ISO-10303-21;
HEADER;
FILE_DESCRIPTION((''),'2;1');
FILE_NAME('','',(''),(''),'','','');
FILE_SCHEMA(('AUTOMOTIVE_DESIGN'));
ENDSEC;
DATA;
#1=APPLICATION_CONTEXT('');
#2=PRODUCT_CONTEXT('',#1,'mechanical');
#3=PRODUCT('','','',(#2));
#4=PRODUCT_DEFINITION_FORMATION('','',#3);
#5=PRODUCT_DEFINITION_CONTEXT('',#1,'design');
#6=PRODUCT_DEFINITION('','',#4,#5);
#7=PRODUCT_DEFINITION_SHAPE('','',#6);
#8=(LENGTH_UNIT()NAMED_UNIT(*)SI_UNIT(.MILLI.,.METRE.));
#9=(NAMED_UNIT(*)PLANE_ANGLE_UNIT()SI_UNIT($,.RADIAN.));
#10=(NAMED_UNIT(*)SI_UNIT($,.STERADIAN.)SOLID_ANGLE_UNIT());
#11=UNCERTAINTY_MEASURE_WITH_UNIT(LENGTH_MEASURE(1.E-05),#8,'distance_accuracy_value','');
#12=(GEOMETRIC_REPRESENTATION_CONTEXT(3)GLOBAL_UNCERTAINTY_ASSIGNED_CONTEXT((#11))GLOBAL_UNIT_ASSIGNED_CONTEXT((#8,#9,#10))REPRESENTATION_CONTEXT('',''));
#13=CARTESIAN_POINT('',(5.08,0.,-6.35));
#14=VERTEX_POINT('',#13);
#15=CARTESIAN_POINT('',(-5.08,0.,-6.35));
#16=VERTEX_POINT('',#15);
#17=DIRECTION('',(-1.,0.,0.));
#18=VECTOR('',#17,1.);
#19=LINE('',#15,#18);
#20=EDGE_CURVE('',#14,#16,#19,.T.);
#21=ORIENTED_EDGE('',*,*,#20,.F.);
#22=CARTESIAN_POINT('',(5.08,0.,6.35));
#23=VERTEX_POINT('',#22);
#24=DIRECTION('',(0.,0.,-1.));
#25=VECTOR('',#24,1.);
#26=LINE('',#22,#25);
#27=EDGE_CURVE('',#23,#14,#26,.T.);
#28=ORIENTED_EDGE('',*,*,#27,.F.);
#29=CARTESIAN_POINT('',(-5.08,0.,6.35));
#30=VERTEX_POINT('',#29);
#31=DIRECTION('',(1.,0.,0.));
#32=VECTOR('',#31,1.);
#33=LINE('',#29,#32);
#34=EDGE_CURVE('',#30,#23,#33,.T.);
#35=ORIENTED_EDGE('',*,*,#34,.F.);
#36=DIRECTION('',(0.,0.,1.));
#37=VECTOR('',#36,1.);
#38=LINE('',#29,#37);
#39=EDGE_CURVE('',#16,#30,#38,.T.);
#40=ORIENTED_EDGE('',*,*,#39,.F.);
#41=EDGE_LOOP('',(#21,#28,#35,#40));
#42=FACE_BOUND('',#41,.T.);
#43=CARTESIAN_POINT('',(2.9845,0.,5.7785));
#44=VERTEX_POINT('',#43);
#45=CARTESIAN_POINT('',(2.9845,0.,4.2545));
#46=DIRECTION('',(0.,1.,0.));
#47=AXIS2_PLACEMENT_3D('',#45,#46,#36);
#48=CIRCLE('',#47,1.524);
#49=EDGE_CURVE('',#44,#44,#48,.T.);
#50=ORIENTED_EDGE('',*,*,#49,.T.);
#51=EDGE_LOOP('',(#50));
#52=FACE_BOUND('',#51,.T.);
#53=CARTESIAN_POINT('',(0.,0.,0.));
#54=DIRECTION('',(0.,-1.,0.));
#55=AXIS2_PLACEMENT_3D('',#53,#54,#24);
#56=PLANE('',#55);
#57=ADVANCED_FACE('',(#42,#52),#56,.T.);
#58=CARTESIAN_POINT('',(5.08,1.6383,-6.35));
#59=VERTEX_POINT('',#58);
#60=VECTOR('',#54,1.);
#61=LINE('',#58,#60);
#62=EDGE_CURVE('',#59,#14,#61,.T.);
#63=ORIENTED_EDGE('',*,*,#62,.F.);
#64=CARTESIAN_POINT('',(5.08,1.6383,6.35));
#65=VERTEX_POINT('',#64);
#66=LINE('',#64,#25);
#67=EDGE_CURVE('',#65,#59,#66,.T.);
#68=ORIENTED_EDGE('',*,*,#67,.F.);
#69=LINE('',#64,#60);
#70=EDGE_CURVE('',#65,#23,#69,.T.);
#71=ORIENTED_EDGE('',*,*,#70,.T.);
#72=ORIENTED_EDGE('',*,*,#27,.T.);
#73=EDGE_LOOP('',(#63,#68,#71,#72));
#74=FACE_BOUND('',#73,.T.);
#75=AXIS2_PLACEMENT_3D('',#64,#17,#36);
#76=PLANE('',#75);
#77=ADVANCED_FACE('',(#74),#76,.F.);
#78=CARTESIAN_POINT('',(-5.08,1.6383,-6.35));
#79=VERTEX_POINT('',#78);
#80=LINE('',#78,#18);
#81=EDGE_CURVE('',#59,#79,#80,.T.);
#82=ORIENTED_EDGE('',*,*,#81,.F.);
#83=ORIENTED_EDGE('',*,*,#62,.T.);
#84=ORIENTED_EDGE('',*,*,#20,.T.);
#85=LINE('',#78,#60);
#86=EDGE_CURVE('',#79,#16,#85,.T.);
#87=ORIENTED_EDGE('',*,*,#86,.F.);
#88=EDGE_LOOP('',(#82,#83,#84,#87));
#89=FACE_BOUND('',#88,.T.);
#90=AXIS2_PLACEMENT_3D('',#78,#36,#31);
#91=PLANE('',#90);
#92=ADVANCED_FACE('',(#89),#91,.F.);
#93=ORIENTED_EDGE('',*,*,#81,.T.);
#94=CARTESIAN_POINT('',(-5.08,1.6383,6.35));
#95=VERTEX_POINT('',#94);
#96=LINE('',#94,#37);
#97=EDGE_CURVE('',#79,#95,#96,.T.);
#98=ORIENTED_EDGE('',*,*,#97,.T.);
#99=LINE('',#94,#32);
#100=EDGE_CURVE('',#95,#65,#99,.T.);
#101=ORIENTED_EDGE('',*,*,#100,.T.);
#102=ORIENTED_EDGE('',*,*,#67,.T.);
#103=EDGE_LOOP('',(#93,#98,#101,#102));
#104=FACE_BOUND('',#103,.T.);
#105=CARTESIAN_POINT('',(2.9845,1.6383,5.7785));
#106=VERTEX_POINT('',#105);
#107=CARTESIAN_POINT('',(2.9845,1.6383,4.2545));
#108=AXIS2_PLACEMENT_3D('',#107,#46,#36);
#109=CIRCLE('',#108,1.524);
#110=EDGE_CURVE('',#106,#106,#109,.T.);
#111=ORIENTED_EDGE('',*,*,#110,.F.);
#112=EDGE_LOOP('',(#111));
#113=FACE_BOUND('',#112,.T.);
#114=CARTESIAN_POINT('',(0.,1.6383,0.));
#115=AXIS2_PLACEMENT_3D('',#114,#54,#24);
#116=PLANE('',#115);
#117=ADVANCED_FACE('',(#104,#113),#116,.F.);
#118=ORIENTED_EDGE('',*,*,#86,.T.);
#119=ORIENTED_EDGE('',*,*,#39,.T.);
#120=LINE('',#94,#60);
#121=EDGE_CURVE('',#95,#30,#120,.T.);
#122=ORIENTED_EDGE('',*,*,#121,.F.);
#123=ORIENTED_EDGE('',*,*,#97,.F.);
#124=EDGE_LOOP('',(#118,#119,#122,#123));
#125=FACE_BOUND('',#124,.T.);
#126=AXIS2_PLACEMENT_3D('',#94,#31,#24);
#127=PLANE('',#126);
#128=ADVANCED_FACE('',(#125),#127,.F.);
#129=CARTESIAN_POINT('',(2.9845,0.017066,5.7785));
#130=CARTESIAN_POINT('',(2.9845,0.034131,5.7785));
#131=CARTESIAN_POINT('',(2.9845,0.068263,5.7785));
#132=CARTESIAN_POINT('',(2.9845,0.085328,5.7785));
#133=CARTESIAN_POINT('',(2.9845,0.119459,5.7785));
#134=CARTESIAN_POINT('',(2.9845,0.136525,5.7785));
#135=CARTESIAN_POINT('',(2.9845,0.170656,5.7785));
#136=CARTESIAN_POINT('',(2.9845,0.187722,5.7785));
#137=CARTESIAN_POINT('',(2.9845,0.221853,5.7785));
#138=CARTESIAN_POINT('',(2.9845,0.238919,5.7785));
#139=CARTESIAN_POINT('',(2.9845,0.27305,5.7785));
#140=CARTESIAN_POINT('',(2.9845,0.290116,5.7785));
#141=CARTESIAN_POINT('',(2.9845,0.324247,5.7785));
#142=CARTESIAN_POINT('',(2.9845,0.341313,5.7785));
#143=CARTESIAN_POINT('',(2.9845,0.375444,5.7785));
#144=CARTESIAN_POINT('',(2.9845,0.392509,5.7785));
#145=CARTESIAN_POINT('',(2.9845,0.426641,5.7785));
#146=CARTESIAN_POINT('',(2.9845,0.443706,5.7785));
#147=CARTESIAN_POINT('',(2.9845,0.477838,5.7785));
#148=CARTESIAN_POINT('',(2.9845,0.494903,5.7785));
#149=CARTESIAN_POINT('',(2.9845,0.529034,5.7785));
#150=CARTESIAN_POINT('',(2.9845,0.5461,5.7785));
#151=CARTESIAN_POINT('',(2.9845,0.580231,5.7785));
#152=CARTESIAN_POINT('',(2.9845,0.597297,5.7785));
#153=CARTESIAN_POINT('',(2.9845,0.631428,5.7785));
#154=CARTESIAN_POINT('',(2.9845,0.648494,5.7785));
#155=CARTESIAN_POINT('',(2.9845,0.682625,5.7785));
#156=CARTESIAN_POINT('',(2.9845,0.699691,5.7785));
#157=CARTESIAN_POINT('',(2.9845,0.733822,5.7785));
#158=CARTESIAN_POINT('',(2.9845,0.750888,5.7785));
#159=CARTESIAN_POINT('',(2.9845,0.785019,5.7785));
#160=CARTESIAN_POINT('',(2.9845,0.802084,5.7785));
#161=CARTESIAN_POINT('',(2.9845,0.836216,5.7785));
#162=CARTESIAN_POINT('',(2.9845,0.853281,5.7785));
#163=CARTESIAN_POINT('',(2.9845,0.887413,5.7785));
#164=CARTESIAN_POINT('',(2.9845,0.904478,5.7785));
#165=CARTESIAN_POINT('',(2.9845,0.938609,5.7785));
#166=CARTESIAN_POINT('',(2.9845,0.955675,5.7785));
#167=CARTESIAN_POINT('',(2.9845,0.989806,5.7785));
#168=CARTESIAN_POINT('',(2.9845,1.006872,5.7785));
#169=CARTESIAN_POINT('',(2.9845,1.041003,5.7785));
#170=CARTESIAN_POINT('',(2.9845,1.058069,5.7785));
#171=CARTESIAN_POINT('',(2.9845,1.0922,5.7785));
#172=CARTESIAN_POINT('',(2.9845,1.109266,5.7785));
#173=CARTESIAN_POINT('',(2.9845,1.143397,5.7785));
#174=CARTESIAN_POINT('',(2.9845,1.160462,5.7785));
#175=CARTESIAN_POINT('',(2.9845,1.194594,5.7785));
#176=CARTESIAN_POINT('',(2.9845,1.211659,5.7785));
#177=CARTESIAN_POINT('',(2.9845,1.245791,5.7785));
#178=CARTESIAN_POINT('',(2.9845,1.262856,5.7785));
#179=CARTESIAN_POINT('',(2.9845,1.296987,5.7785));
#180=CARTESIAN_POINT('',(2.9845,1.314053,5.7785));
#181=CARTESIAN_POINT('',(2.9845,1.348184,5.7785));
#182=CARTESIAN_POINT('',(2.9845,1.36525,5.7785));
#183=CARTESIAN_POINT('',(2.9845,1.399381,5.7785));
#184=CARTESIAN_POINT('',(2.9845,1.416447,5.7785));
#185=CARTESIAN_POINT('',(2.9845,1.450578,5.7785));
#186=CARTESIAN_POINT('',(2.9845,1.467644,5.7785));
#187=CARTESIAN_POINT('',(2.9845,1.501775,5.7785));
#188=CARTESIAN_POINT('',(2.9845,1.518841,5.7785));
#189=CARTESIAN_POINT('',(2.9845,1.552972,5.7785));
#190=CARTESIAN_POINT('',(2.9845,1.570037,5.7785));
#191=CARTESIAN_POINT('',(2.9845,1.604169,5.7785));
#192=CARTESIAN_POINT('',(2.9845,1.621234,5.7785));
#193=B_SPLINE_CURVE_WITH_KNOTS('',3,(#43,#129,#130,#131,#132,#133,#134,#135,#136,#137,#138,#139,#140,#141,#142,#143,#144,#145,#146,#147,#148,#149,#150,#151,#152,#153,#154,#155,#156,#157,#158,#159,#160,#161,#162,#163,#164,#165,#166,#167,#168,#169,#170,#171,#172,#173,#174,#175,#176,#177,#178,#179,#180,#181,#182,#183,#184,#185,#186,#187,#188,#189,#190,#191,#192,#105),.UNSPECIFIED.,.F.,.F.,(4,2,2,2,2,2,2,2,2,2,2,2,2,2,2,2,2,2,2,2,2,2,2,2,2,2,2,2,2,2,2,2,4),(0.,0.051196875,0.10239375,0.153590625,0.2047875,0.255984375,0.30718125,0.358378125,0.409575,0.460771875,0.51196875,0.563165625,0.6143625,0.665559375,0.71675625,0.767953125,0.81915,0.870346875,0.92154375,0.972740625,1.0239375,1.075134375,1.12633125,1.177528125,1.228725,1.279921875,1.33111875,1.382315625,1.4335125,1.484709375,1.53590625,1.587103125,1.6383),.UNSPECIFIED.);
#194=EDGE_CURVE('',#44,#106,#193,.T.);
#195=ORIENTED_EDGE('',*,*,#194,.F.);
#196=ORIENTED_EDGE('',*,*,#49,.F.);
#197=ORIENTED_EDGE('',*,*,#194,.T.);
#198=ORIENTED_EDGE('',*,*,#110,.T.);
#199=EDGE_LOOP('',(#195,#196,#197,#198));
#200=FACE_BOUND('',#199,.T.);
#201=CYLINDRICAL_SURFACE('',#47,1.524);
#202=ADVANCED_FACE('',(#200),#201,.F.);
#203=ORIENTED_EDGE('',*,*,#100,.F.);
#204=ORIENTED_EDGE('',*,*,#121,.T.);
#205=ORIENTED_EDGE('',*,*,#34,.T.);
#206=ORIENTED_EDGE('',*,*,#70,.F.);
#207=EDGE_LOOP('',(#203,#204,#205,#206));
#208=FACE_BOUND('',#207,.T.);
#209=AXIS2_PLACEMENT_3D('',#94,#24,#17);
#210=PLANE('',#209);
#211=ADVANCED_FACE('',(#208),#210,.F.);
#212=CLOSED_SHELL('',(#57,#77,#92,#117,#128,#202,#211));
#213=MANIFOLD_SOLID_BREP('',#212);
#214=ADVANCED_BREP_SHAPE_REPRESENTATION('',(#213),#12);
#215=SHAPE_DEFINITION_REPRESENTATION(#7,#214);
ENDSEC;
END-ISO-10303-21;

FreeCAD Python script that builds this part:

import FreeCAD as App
import Part
import Sketcher

V = App.Vector
Q = App.Units.Quantity

doc = App.newDocument("Part")
body = doc.addObject("PartDesign::Body", "Body")

# Sketch on XZ plane
sketch1 = doc.addObject("Sketcher::SketchObject", "Sketch")
body.addObject(sketch1)
sketch1.AttachmentSupport = (doc.XZ_Plane, [""])
sketch1.MapMode = "FlatFace"
sketch1.addGeometry([
    Part.LineSegment(V(-5, -6, 0), V(-5, 6, 0)),
    Part.LineSegment(V(-5, 6, 0), V(5, 6, 0)),
    Part.LineSegment(V(5, 6, 0), V(5, -6, 0)),
    Part.LineSegment(V(5, -6, 0), V(-5, -6, 0)),
], False)
sketch1.addConstraint([
    Sketcher.Constraint("Coincident", 0, 2, 1, 1),
    Sketcher.Constraint("Coincident", 1, 2, 2, 1),
    Sketcher.Constraint("Coincident", 2, 2, 3, 1),
    Sketcher.Constraint("Coincident", 3, 2, 0, 1),
    Sketcher.Constraint("Vertical", 0),
    Sketcher.Constraint("Horizontal", 1),
    Sketcher.Constraint("Vertical", 2),
    Sketcher.Constraint("Horizontal", 3),
    Sketcher.Constraint("Symmetric", 0, 2, 2, 2, -1, 1),
    Sketcher.Constraint("DistanceX", 1, 1, 1, 2, Q("0.4 in")),
    Sketcher.Constraint("DistanceY", 0, 1, 0, 2, Q("0.5 in")),
])
pad1 = doc.addObject("PartDesign::Pad", "Pad")
body.addObject(pad1)
pad1.Profile = sketch1
pad1.Length = Q("0.0645 in")
pad1.Reversed = True

# Sketch on XZ plane
sketch2 = doc.addObject("Sketcher::SketchObject", "Sketch001")
body.addObject(sketch2)
sketch2.AttachmentSupport = (doc.XZ_Plane, [""])
sketch2.MapMode = "FlatFace"
sketch2.AttachmentOffset = App.Placement(V(0, 0, -0.0645 * 25.4), App.Rotation())
sketch2.addGeometry(Part.Circle(V(3, 4.3, 0), V(0, 0, 1), 1.5), False)
sketch2.addConstraint([
    Sketcher.Constraint("Diameter", 0, Q("0.12 in")),
    Sketcher.Constraint("DistanceX", -1, 1, 0, 3, Q("0.1175 in")),
    Sketcher.Constraint("DistanceY", -1, 1, 0, 3, Q("0.1675 in")),
])
pocket1 = doc.addObject("PartDesign::Pocket", "Pocket")
body.addObject(pocket1)
pocket1.Profile = sketch2
pocket1.Length = Q("0.0645 in")
pocket1.Reversed = True

doc.recompute()
